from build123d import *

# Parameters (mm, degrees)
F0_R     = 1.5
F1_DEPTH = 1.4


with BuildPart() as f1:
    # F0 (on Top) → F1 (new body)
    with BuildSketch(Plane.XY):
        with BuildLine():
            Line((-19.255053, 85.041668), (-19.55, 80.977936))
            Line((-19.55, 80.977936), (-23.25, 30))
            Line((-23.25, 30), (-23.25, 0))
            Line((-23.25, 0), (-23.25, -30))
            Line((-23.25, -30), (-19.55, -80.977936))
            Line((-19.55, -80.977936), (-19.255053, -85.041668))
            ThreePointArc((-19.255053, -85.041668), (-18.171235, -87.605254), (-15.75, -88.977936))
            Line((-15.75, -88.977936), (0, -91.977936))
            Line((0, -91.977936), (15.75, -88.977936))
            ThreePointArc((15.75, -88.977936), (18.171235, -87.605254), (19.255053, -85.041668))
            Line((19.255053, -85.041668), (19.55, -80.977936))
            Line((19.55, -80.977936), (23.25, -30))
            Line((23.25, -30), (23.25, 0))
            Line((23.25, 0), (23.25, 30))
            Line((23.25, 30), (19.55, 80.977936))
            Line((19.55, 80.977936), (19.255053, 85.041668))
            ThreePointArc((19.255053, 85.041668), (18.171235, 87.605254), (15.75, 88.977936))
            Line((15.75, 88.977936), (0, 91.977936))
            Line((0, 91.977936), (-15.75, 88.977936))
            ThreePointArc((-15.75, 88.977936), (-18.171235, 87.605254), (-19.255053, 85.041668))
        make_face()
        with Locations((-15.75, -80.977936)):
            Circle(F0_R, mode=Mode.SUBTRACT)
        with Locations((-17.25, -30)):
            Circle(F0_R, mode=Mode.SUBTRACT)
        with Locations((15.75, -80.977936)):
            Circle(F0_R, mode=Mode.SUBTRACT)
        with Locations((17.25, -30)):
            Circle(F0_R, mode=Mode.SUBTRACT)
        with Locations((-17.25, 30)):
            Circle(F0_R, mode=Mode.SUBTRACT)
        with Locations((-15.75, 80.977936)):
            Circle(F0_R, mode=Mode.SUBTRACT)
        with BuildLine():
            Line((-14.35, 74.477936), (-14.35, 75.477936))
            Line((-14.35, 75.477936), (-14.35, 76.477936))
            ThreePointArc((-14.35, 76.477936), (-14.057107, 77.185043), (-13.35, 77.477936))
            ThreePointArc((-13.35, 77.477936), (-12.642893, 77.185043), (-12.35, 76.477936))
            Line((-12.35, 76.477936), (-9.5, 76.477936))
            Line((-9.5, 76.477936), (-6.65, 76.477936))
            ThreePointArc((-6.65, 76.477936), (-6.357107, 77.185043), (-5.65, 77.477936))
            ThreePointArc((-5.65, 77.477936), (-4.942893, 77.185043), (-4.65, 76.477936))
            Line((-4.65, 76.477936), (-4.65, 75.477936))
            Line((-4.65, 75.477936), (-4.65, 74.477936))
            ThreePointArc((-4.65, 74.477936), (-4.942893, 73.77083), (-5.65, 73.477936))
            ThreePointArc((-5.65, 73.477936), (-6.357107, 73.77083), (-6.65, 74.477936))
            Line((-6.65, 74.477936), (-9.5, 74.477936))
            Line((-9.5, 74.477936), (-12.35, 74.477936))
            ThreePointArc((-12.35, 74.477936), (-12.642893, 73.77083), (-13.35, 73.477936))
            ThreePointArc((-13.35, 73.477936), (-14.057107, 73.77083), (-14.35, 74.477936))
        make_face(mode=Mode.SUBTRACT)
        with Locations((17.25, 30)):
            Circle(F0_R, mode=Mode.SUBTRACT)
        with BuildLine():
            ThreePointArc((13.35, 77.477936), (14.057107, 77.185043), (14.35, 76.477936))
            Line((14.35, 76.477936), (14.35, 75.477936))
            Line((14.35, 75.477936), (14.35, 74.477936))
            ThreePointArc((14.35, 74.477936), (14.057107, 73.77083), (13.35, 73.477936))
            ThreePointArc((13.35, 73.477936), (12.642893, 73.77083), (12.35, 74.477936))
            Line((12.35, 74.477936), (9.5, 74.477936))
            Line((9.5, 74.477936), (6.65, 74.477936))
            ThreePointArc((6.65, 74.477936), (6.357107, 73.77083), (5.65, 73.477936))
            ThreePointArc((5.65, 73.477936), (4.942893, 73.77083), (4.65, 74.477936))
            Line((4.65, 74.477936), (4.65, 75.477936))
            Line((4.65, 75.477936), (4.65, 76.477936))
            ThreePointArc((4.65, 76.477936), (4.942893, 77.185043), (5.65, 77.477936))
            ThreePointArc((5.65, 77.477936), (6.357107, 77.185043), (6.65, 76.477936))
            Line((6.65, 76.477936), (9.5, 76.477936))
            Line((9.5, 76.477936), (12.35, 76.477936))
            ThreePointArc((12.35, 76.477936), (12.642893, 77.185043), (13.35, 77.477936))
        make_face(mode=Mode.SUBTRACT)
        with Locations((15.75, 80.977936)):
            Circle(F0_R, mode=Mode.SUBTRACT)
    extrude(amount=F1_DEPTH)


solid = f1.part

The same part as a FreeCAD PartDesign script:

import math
import FreeCAD as App
import Part
import Sketcher

V = App.Vector
Q = App.Units.Quantity

doc = App.newDocument("Part")
body = doc.addObject("PartDesign::Body", "Body")

sketch1 = body.newObject("Sketcher::SketchObject", "Sketch")
sketch1.AttachmentSupport = (doc.getObject("XY_Plane"), [""])
sketch1.MapMode = "FlatFace"
sketch1.addGeometry(Part.LineSegment(V(-19.255053, 85.041668, 0), V(-19.55, 80.977936, 0)), False)
sketch1.addGeometry(Part.LineSegment(V(-19.55, 80.977936, 0), V(-23.25, 30, 0)), False)
sketch1.addGeometry(Part.LineSegment(V(-23.25, 30, 0), V(-23.25, -30, 0)), False)
sketch1.addGeometry(Part.LineSegment(V(-23.25, -30, 0), V(-19.55, -80.977936, 0)), False)
sketch1.addGeometry(Part.LineSegment(V(-19.55, -80.977936, 0), V(-19.255053, -85.041668, 0)), False)
sketch1.addGeometry(Part.ArcOfCircle(Part.Circle(V(-14.940588, -84.728522, 0), V(0, 0, 1), 4.325815), math.radians(-175.848718), math.radians(-100.784298)), False)
sketch1.addGeometry(Part.LineSegment(V(-15.75, -88.977936, 0), V(0, -91.977936, 0)), False)
sketch1.addGeometry(Part.LineSegment(V(0, -91.977936, 0), V(15.75, -88.977936, 0)), False)
sketch1.addGeometry(Part.ArcOfCircle(Part.Circle(V(14.940588, -84.728522, 0), V(0, 0, 1), 4.325815), math.radians(-79.215702), math.radians(-4.151282)), False)
sketch1.addGeometry(Part.LineSegment(V(19.255053, -85.041668, 0), V(19.55, -80.977936, 0)), False)
sketch1.addGeometry(Part.LineSegment(V(19.55, -80.977936, 0), V(23.25, -30, 0)), False)
sketch1.addGeometry(Part.LineSegment(V(23.25, -30, 0), V(23.25, 30, 0)), False)
sketch1.addGeometry(Part.LineSegment(V(23.25, 30, 0), V(19.55, 80.977936, 0)), False)
sketch1.addGeometry(Part.LineSegment(V(19.55, 80.977936, 0), V(19.255053, 85.041668, 0)), False)
sketch1.addGeometry(Part.ArcOfCircle(Part.Circle(V(14.940588, 84.728522, 0), V(0, 0, 1), 4.325815), math.radians(4.151282), math.radians(79.215702)), False)
sketch1.addGeometry(Part.LineSegment(V(15.75, 88.977936, 0), V(0, 91.977936, 0)), False)
sketch1.addGeometry(Part.LineSegment(V(0, 91.977936, 0), V(-15.75, 88.977936, 0)), False)
sketch1.addGeometry(Part.ArcOfCircle(Part.Circle(V(-14.940588, 84.728522, 0), V(0, 0, 1), 4.325815), math.radians(100.784298), math.radians(175.848718)), False)
sketch1.addGeometry(Part.Circle(V(-15.75, -80.977936, 0), V(0, 0, 1), 1.5), False)
sketch1.addGeometry(Part.Circle(V(-17.25, -30, 0), V(0, 0, 1), 1.5), False)
sketch1.addGeometry(Part.Circle(V(15.75, -80.977936, 0), V(0, 0, 1), 1.5), False)
sketch1.addGeometry(Part.Circle(V(17.25, -30, 0), V(0, 0, 1), 1.5), False)
sketch1.addGeometry(Part.Circle(V(-17.25, 30, 0), V(0, 0, 1), 1.5), False)
sketch1.addGeometry(Part.Circle(V(-15.75, 80.977936, 0), V(0, 0, 1), 1.5), False)
sketch1.addGeometry(Part.ArcOfCircle(Part.Circle(V(-13.349999, 74.477937, 0), V(0, 0, 1), 1.000001), math.radians(-179.999945), math.radians(-90.000055)), False)
sketch1.addGeometry(Part.LineSegment(V(-14.35, 74.477936, 0), V(-14.35, 76.477936, 0)), False)
sketch1.addGeometry(Part.ArcOfCircle(Part.Circle(V(-13.350001, 76.477937, 0), V(0, 0, 1), 0.999999), math.radians(89.999957), math.radians(180.000043)), False)
sketch1.addGeometry(Part.ArcOfCircle(Part.Circle(V(-13.349999, 76.477937, 0), V(0, 0, 1), 0.999999), math.radians(-0.000043), math.radians(90.000043)), False)
sketch1.addGeometry(Part.LineSegment(V(-12.35, 76.477936, 0), V(-6.65, 76.477936, 0)), False)
sketch1.addGeometry(Part.ArcOfCircle(Part.Circle(V(-5.650001, 76.477937, 0), V(0, 0, 1), 0.999999), math.radians(89.999957), math.radians(180.000043)), False)
sketch1.addGeometry(Part.ArcOfCircle(Part.Circle(V(-5.649999, 76.477937, 0), V(0, 0, 1), 0.999999), math.radians(-0.000043), math.radians(90.000043)), False)
sketch1.addGeometry(Part.LineSegment(V(-4.65, 76.477936, 0), V(-4.65, 74.477936, 0)), False)
sketch1.addGeometry(Part.ArcOfCircle(Part.Circle(V(-5.650001, 74.477937, 0), V(0, 0, 1), 1.000001), math.radians(-89.999945), math.radians(-0.000055)), False)
sketch1.addGeometry(Part.ArcOfCircle(Part.Circle(V(-5.649999, 74.477937, 0), V(0, 0, 1), 1.000001), math.radians(-179.999945), math.radians(-90.000055)), False)
sketch1.addGeometry(Part.LineSegment(V(-6.65, 74.477936, 0), V(-12.35, 74.477936, 0)), False)
sketch1.addGeometry(Part.ArcOfCircle(Part.Circle(V(-13.350001, 74.477937, 0), V(0, 0, 1), 1.000001), math.radians(-89.999945), math.radians(-0.000055)), False)
sketch1.addGeometry(Part.Circle(V(17.25, 30, 0), V(0, 0, 1), 1.5), False)
sketch1.addGeometry(Part.ArcOfCircle(Part.Circle(V(13.349999, 76.477937, 0), V(0, 0, 1), 0.999999), math.radians(89.999957), math.radians(180.000043)), False)
sketch1.addGeometry(Part.ArcOfCircle(Part.Circle(V(13.350001, 76.477937, 0), V(0, 0, 1), 0.999999), math.radians(-0.000043), math.radians(90.000043)), False)
sketch1.addGeometry(Part.LineSegment(V(14.35, 76.477936, 0), V(14.35, 74.477936, 0)), False)
sketch1.addGeometry(Part.ArcOfCircle(Part.Circle(V(13.349999, 74.477937, 0), V(0, 0, 1), 1.000001), math.radians(-89.999945), math.radians(-0.000055)), False)
sketch1.addGeometry(Part.ArcOfCircle(Part.Circle(V(13.350001, 74.477937, 0), V(0, 0, 1), 1.000001), math.radians(-179.999945), math.radians(-90.000055)), False)
sketch1.addGeometry(Part.LineSegment(V(12.35, 74.477936, 0), V(6.65, 74.477936, 0)), False)
sketch1.addGeometry(Part.ArcOfCircle(Part.Circle(V(5.649999, 74.477937, 0), V(0, 0, 1), 1.000001), math.radians(-89.999945), math.radians(-0.000055)), False)
sketch1.addGeometry(Part.ArcOfCircle(Part.Circle(V(5.650001, 74.477937, 0), V(0, 0, 1), 1.000001), math.radians(-179.999945), math.radians(-90.000055)), False)
sketch1.addGeometry(Part.LineSegment(V(4.65, 74.477936, 0), V(4.65, 76.477936, 0)), False)
sketch1.addGeometry(Part.ArcOfCircle(Part.Circle(V(5.649999, 76.477937, 0), V(0, 0, 1), 0.999999), math.radians(89.999957), math.radians(180.000043)), False)
sketch1.addGeometry(Part.ArcOfCircle(Part.Circle(V(5.650001, 76.477937, 0), V(0, 0, 1), 0.999999), math.radians(-0.000043), math.radians(90.000043)), False)
sketch1.addGeometry(Part.LineSegment(V(6.65, 76.477936, 0), V(12.35, 76.477936, 0)), False)
sketch1.addGeometry(Part.Circle(V(15.75, 80.977936, 0), V(0, 0, 1), 1.5), False)
sketch1.addConstraint(Sketcher.Constraint("Coincident", 0, 2, 1, 1))
sketch1.addConstraint(Sketcher.Constraint("Coincident", 1, 2, 2, 1))
sketch1.addConstraint(Sketcher.Constraint("Coincident", 2, 2, 3, 1))
sketch1.addConstraint(Sketcher.Constraint("Coincident", 3, 2, 4, 1))
sketch1.addConstraint(Sketcher.Constraint("Tangent", 4, 2, 5, 1))
sketch1.addConstraint(Sketcher.Constraint("Tangent", 5, 2, 6, 1))
sketch1.addConstraint(Sketcher.Constraint("Coincident", 6, 2, 7, 1))
sketch1.addConstraint(Sketcher.Constraint("Tangent", 7, 2, 8, 1))
sketch1.addConstraint(Sketcher.Constraint("Tangent", 8, 2, 9, 1))
sketch1.addConstraint(Sketcher.Constraint("Coincident", 9, 2, 10, 1))
sketch1.addConstraint(Sketcher.Constraint("Coincident", 10, 2, 11, 1))
sketch1.addConstraint(Sketcher.Constraint("Coincident", 11, 2, 12, 1))
sketch1.addConstraint(Sketcher.Constraint("Coincident", 12, 2, 13, 1))
sketch1.addConstraint(Sketcher.Constraint("Tangent", 13, 2, 14, 1))
sketch1.addConstraint(Sketcher.Constraint("Tangent", 14, 2, 15, 1))
sketch1.addConstraint(Sketcher.Constraint("Coincident", 15, 2, 16, 1))
sketch1.addConstraint(Sketcher.Constraint("Tangent", 16, 2, 17, 1))
sketch1.addConstraint(Sketcher.Constraint("Tangent", 17, 2, 0, 1))
sketch1.addConstraint(Sketcher.Constraint("Tangent", 24, 1, 25, 1))
sketch1.addConstraint(Sketcher.Constraint("Tangent", 25, 2, 26, 2))
sketch1.addConstraint(Sketcher.Constraint("Tangent", 26, 1, 27, 2))
sketch1.addConstraint(Sketcher.Constraint("Coincident", 27, 1, 28, 1))
sketch1.addConstraint(Sketcher.Constraint("Coincident", 28, 2, 29, 2))
sketch1.addConstraint(Sketcher.Constraint("Tangent", 29, 1, 30, 2))
sketch1.addConstraint(Sketcher.Constraint("Tangent", 30, 1, 31, 1))
sketch1.addConstraint(Sketcher.Constraint("Tangent", 31, 2, 32, 2))
sketch1.addConstraint(Sketcher.Constraint("Tangent", 32, 1, 33, 2))
sketch1.addConstraint(Sketcher.Constraint("Coincident", 33, 1, 34, 1))
sketch1.addConstraint(Sketcher.Constraint("Coincident", 34, 2, 35, 2))
sketch1.addConstraint(Sketcher.Constraint("Tangent", 35, 1, 24, 2))
sketch1.addConstraint(Sketcher.Constraint("Tangent", 37, 1, 38, 2))
sketch1.addConstraint(Sketcher.Constraint("Tangent", 38, 1, 39, 1))
sketch1.addConstraint(Sketcher.Constraint("Tangent", 39, 2, 40, 2))
sketch1.addConstraint(Sketcher.Constraint("Tangent", 40, 1, 41, 2))
sketch1.addConstraint(Sketcher.Constraint("Coincident", 41, 1, 42, 1))
sketch1.addConstraint(Sketcher.Constraint("Coincident", 42, 2, 43, 2))
sketch1.addConstraint(Sketcher.Constraint("Tangent", 43, 1, 44, 2))
sketch1.addConstraint(Sketcher.Constraint("Tangent", 44, 1, 45, 1))
sketch1.addConstraint(Sketcher.Constraint("Tangent", 45, 2, 46, 2))
sketch1.addConstraint(Sketcher.Constraint("Tangent", 46, 1, 47, 2))
sketch1.addConstraint(Sketcher.Constraint("Coincident", 47, 1, 48, 1))
sketch1.addConstraint(Sketcher.Constraint("Coincident", 48, 2, 37, 2))
sketch1.addConstraint(Sketcher.Constraint("Vertical", 2))
sketch1.addConstraint(Sketcher.Constraint("Vertical", 11))
sketch1.addConstraint(Sketcher.Constraint("Vertical", 25))
sketch1.addConstraint(Sketcher.Constraint("Horizontal", 28))
sketch1.addConstraint(Sketcher.Constraint("Vertical", 31))
sketch1.addConstraint(Sketcher.Constraint("Horizontal", 34))
sketch1.addConstraint(Sketcher.Constraint("Vertical", 39))
sketch1.addConstraint(Sketcher.Constraint("Horizontal", 42))
sketch1.addConstraint(Sketcher.Constraint("Vertical", 45))
sketch1.addConstraint(Sketcher.Constraint("Horizontal", 48))
sketch1.addConstraint(Sketcher.Constraint("Equal", 5, 8))
sketch1.addConstraint(Sketcher.Constraint("Equal", 8, 14))
sketch1.addConstraint(Sketcher.Constraint("Equal", 14, 17))
sketch1.addConstraint(Sketcher.Constraint("Equal", 18, 19))
sketch1.addConstraint(Sketcher.Constraint("Equal", 19, 20))
sketch1.addConstraint(Sketcher.Constraint("Equal", 20, 21))
sketch1.addConstraint(Sketcher.Constraint("Equal", 21, 22))
sketch1.addConstraint(Sketcher.Constraint("Equal", 22, 23))
sketch1.addConstraint(Sketcher.Constraint("Equal", 24, 26))
sketch1.addConstraint(Sketcher.Constraint("Equal", 26, 27))
sketch1.addConstraint(Sketcher.Constraint("Equal", 27, 29))
sketch1.addConstraint(Sketcher.Constraint("Equal", 29, 30))
sketch1.addConstraint(Sketcher.Constraint("Equal", 30, 32))
sketch1.addConstraint(Sketcher.Constraint("Equal", 32, 33))
sketch1.addConstraint(Sketcher.Constraint("Equal", 33, 35))
sketch1.addConstraint(Sketcher.Constraint("Equal", 23, 36))
sketch1.addConstraint(Sketcher.Constraint("Equal", 35, 37))
sketch1.addConstraint(Sketcher.Constraint("Equal", 37, 38))
sketch1.addConstraint(Sketcher.Constraint("Equal", 38, 40))
sketch1.addConstraint(Sketcher.Constraint("Equal", 40, 41))
sketch1.addConstraint(Sketcher.Constraint("Equal", 41, 43))
sketch1.addConstraint(Sketcher.Constraint("Equal", 43, 44))
sketch1.addConstraint(Sketcher.Constraint("Equal", 44, 46))
sketch1.addConstraint(Sketcher.Constraint("Equal", 46, 47))
sketch1.addConstraint(Sketcher.Constraint("Equal", 36, 49))
sketch1.addConstraint(Sketcher.Constraint("Symmetric", 5, 3, 14, 3, -1, 1))
sketch1.addConstraint(Sketcher.Constraint("Symmetric", 8, 3, 17, 3, -1, 1))
sketch1.addConstraint(Sketcher.Constraint("Symmetric", 21, 3, 22, 3, -1, 1))
sketch1.addConstraint(Sketcher.Constraint("Symmetric", 20, 3, 23, 3, -1, 1))
sketch1.addConstraint(Sketcher.Constraint("Symmetric", 19, 3, 36, 3, -1, 1))
sketch1.addConstraint(Sketcher.Constraint("Symmetric", 18, 3, 49, 3, -1, 1))
sketch1.addConstraint(Sketcher.Constraint("Symmetric", 0, 2, 9, 2, -1, 1))
sketch1.addConstraint(Sketcher.Constraint("Symmetric", 1, 2, 10, 2, -1, 1))
sketch1.addConstraint(Sketcher.Constraint("Symmetric", 3, 2, 12, 2, -1, 1))
sketch1.addConstraint(Sketcher.Constraint("Symmetric", 6, 2, 15, 2, -1, 1))
sketch1.addConstraint(Sketcher.Constraint("Symmetric", 5, 3, 8, 3, -2))
sketch1.addConstraint(Sketcher.Constraint("Symmetric", 18, 3, 20, 3, -2))
sketch1.addConstraint(Sketcher.Constraint("Symmetric", 19, 3, 21, 3, -2))
sketch1.addConstraint(Sketcher.Constraint("Symmetric", 26, 3, 37, 3, -2))
sketch1.addConstraint(Sketcher.Constraint("Symmetric", 32, 3, 43, 3, -2))
sketch1.addConstraint(Sketcher.Constraint("Symmetric", 3, 2, 9, 2, -2))
sketch1.addConstraint(Sketcher.Constraint("Symmetric", 35, 1, 40, 1, -2))
sketch1.addConstraint(Sketcher.Constraint("Symmetric", 29, 1, 46, 1, -2))
sketch1.addConstraint(Sketcher.Constraint("PointOnObject", 6, 2, -2))
sketch1.addConstraint(Sketcher.Constraint("Parallel", 0, 1))
sketch1.addConstraint(Sketcher.Constraint("Parallel", 3, 4))
sketch1.addConstraint(Sketcher.Constraint("Parallel", 4, 12))
sketch1.addConstraint(Sketcher.Constraint("Horizontal", 27, 3, 29, 3))
sketch1.addConstraint(Sketcher.Constraint("Horizontal", 24, 3, 32, 3))
sketch1.addConstraint(Sketcher.Constraint("Horizontal", 49, 3, 0, 2))
sketch1.addConstraint(Sketcher.Constraint("Horizontal", 36, 3, 1, 2))
sketch1.addConstraint(Sketcher.Constraint("Horizontal", 25, 2, 27, 1))
sketch1.addConstraint(Sketcher.Constraint("Horizontal", 31, 2, 33, 1))
sketch1.addConstraint(Sketcher.Constraint("Horizontal", 39, 2, 41, 1))
sketch1.addConstraint(Sketcher.Constraint("Horizontal", 45, 2, 47, 1))
sketch1.addConstraint(Sketcher.Constraint("Vertical", 23, 3, 5, 2))
sketch1.addConstraint(Sketcher.Constraint("Vertical", 35, 3, 26, 1))
sketch1.addConstraint(Sketcher.Constraint("Vertical", 33, 3, 29, 1))
sketch1.addConstraint(Sketcher.Constraint("Vertical", 29, 1, 32, 1))
sketch1.addConstraint(Sketcher.Constraint("Vertical", 26, 1, 35, 1))
sketch1.addConstraint(Sketcher.Constraint("Vertical", 41, 3, 37, 1))
sketch1.addConstraint(Sketcher.Constraint("Vertical", 47, 3, 43, 1))
sketch1.addConstraint(Sketcher.Constraint("Diameter", 18, Q("3 mm")))
sketch1.addConstraint(Sketcher.Constraint("Radius", 24, Q("1.000001 mm")))
sketch1.addConstraint(Sketcher.Constraint("DistanceY", 2, 2, 2, 1, Q("60 mm")))
sketch1.addConstraint(Sketcher.Constraint("DistanceY", 25, 1, 25, 2, Q("2 mm")))
sketch1.addConstraint(Sketcher.Constraint("DistanceX", 28, 1, 28, 2, Q("5.7 mm")))
sketch1.addConstraint(Sketcher.Constraint("DistanceX", 18, 3, -1, 1, Q("15.75 mm")))
sketch1.addConstraint(Sketcher.Constraint("DistanceX", 19, 3, -1, 1, Q("17.25 mm")))
sketch1.addConstraint(Sketcher.Constraint("DistanceX", 24, 3, -1, 1, Q("13.349999 mm")))
sketch1.addConstraint(Sketcher.Constraint("DistanceX", 0, 2, -1, 1, Q("19.55 mm")))
sketch1.addConstraint(Sketcher.Constraint("DistanceX", 1, 2, -1, 1, Q("23.25 mm")))
sketch1.addConstraint(Sketcher.Constraint("Radius", 5, Q("4.325815 mm")))
sketch1.addConstraint(Sketcher.Constraint("Distance", 0, Q("4.074422 mm")))
sketch1.addConstraint(Sketcher.Constraint("DistanceY", 5, 3, -1, 1, Q("84.728522 mm")))
sketch1.addConstraint(Sketcher.Constraint("DistanceY", -1, 1, 24, 3, Q("74.477937 mm")))
pad1 = body.newObject("PartDesign::Pad", "Pad")
pad1.Profile = sketch1
pad1.Length = 1.4

doc.recompute()
